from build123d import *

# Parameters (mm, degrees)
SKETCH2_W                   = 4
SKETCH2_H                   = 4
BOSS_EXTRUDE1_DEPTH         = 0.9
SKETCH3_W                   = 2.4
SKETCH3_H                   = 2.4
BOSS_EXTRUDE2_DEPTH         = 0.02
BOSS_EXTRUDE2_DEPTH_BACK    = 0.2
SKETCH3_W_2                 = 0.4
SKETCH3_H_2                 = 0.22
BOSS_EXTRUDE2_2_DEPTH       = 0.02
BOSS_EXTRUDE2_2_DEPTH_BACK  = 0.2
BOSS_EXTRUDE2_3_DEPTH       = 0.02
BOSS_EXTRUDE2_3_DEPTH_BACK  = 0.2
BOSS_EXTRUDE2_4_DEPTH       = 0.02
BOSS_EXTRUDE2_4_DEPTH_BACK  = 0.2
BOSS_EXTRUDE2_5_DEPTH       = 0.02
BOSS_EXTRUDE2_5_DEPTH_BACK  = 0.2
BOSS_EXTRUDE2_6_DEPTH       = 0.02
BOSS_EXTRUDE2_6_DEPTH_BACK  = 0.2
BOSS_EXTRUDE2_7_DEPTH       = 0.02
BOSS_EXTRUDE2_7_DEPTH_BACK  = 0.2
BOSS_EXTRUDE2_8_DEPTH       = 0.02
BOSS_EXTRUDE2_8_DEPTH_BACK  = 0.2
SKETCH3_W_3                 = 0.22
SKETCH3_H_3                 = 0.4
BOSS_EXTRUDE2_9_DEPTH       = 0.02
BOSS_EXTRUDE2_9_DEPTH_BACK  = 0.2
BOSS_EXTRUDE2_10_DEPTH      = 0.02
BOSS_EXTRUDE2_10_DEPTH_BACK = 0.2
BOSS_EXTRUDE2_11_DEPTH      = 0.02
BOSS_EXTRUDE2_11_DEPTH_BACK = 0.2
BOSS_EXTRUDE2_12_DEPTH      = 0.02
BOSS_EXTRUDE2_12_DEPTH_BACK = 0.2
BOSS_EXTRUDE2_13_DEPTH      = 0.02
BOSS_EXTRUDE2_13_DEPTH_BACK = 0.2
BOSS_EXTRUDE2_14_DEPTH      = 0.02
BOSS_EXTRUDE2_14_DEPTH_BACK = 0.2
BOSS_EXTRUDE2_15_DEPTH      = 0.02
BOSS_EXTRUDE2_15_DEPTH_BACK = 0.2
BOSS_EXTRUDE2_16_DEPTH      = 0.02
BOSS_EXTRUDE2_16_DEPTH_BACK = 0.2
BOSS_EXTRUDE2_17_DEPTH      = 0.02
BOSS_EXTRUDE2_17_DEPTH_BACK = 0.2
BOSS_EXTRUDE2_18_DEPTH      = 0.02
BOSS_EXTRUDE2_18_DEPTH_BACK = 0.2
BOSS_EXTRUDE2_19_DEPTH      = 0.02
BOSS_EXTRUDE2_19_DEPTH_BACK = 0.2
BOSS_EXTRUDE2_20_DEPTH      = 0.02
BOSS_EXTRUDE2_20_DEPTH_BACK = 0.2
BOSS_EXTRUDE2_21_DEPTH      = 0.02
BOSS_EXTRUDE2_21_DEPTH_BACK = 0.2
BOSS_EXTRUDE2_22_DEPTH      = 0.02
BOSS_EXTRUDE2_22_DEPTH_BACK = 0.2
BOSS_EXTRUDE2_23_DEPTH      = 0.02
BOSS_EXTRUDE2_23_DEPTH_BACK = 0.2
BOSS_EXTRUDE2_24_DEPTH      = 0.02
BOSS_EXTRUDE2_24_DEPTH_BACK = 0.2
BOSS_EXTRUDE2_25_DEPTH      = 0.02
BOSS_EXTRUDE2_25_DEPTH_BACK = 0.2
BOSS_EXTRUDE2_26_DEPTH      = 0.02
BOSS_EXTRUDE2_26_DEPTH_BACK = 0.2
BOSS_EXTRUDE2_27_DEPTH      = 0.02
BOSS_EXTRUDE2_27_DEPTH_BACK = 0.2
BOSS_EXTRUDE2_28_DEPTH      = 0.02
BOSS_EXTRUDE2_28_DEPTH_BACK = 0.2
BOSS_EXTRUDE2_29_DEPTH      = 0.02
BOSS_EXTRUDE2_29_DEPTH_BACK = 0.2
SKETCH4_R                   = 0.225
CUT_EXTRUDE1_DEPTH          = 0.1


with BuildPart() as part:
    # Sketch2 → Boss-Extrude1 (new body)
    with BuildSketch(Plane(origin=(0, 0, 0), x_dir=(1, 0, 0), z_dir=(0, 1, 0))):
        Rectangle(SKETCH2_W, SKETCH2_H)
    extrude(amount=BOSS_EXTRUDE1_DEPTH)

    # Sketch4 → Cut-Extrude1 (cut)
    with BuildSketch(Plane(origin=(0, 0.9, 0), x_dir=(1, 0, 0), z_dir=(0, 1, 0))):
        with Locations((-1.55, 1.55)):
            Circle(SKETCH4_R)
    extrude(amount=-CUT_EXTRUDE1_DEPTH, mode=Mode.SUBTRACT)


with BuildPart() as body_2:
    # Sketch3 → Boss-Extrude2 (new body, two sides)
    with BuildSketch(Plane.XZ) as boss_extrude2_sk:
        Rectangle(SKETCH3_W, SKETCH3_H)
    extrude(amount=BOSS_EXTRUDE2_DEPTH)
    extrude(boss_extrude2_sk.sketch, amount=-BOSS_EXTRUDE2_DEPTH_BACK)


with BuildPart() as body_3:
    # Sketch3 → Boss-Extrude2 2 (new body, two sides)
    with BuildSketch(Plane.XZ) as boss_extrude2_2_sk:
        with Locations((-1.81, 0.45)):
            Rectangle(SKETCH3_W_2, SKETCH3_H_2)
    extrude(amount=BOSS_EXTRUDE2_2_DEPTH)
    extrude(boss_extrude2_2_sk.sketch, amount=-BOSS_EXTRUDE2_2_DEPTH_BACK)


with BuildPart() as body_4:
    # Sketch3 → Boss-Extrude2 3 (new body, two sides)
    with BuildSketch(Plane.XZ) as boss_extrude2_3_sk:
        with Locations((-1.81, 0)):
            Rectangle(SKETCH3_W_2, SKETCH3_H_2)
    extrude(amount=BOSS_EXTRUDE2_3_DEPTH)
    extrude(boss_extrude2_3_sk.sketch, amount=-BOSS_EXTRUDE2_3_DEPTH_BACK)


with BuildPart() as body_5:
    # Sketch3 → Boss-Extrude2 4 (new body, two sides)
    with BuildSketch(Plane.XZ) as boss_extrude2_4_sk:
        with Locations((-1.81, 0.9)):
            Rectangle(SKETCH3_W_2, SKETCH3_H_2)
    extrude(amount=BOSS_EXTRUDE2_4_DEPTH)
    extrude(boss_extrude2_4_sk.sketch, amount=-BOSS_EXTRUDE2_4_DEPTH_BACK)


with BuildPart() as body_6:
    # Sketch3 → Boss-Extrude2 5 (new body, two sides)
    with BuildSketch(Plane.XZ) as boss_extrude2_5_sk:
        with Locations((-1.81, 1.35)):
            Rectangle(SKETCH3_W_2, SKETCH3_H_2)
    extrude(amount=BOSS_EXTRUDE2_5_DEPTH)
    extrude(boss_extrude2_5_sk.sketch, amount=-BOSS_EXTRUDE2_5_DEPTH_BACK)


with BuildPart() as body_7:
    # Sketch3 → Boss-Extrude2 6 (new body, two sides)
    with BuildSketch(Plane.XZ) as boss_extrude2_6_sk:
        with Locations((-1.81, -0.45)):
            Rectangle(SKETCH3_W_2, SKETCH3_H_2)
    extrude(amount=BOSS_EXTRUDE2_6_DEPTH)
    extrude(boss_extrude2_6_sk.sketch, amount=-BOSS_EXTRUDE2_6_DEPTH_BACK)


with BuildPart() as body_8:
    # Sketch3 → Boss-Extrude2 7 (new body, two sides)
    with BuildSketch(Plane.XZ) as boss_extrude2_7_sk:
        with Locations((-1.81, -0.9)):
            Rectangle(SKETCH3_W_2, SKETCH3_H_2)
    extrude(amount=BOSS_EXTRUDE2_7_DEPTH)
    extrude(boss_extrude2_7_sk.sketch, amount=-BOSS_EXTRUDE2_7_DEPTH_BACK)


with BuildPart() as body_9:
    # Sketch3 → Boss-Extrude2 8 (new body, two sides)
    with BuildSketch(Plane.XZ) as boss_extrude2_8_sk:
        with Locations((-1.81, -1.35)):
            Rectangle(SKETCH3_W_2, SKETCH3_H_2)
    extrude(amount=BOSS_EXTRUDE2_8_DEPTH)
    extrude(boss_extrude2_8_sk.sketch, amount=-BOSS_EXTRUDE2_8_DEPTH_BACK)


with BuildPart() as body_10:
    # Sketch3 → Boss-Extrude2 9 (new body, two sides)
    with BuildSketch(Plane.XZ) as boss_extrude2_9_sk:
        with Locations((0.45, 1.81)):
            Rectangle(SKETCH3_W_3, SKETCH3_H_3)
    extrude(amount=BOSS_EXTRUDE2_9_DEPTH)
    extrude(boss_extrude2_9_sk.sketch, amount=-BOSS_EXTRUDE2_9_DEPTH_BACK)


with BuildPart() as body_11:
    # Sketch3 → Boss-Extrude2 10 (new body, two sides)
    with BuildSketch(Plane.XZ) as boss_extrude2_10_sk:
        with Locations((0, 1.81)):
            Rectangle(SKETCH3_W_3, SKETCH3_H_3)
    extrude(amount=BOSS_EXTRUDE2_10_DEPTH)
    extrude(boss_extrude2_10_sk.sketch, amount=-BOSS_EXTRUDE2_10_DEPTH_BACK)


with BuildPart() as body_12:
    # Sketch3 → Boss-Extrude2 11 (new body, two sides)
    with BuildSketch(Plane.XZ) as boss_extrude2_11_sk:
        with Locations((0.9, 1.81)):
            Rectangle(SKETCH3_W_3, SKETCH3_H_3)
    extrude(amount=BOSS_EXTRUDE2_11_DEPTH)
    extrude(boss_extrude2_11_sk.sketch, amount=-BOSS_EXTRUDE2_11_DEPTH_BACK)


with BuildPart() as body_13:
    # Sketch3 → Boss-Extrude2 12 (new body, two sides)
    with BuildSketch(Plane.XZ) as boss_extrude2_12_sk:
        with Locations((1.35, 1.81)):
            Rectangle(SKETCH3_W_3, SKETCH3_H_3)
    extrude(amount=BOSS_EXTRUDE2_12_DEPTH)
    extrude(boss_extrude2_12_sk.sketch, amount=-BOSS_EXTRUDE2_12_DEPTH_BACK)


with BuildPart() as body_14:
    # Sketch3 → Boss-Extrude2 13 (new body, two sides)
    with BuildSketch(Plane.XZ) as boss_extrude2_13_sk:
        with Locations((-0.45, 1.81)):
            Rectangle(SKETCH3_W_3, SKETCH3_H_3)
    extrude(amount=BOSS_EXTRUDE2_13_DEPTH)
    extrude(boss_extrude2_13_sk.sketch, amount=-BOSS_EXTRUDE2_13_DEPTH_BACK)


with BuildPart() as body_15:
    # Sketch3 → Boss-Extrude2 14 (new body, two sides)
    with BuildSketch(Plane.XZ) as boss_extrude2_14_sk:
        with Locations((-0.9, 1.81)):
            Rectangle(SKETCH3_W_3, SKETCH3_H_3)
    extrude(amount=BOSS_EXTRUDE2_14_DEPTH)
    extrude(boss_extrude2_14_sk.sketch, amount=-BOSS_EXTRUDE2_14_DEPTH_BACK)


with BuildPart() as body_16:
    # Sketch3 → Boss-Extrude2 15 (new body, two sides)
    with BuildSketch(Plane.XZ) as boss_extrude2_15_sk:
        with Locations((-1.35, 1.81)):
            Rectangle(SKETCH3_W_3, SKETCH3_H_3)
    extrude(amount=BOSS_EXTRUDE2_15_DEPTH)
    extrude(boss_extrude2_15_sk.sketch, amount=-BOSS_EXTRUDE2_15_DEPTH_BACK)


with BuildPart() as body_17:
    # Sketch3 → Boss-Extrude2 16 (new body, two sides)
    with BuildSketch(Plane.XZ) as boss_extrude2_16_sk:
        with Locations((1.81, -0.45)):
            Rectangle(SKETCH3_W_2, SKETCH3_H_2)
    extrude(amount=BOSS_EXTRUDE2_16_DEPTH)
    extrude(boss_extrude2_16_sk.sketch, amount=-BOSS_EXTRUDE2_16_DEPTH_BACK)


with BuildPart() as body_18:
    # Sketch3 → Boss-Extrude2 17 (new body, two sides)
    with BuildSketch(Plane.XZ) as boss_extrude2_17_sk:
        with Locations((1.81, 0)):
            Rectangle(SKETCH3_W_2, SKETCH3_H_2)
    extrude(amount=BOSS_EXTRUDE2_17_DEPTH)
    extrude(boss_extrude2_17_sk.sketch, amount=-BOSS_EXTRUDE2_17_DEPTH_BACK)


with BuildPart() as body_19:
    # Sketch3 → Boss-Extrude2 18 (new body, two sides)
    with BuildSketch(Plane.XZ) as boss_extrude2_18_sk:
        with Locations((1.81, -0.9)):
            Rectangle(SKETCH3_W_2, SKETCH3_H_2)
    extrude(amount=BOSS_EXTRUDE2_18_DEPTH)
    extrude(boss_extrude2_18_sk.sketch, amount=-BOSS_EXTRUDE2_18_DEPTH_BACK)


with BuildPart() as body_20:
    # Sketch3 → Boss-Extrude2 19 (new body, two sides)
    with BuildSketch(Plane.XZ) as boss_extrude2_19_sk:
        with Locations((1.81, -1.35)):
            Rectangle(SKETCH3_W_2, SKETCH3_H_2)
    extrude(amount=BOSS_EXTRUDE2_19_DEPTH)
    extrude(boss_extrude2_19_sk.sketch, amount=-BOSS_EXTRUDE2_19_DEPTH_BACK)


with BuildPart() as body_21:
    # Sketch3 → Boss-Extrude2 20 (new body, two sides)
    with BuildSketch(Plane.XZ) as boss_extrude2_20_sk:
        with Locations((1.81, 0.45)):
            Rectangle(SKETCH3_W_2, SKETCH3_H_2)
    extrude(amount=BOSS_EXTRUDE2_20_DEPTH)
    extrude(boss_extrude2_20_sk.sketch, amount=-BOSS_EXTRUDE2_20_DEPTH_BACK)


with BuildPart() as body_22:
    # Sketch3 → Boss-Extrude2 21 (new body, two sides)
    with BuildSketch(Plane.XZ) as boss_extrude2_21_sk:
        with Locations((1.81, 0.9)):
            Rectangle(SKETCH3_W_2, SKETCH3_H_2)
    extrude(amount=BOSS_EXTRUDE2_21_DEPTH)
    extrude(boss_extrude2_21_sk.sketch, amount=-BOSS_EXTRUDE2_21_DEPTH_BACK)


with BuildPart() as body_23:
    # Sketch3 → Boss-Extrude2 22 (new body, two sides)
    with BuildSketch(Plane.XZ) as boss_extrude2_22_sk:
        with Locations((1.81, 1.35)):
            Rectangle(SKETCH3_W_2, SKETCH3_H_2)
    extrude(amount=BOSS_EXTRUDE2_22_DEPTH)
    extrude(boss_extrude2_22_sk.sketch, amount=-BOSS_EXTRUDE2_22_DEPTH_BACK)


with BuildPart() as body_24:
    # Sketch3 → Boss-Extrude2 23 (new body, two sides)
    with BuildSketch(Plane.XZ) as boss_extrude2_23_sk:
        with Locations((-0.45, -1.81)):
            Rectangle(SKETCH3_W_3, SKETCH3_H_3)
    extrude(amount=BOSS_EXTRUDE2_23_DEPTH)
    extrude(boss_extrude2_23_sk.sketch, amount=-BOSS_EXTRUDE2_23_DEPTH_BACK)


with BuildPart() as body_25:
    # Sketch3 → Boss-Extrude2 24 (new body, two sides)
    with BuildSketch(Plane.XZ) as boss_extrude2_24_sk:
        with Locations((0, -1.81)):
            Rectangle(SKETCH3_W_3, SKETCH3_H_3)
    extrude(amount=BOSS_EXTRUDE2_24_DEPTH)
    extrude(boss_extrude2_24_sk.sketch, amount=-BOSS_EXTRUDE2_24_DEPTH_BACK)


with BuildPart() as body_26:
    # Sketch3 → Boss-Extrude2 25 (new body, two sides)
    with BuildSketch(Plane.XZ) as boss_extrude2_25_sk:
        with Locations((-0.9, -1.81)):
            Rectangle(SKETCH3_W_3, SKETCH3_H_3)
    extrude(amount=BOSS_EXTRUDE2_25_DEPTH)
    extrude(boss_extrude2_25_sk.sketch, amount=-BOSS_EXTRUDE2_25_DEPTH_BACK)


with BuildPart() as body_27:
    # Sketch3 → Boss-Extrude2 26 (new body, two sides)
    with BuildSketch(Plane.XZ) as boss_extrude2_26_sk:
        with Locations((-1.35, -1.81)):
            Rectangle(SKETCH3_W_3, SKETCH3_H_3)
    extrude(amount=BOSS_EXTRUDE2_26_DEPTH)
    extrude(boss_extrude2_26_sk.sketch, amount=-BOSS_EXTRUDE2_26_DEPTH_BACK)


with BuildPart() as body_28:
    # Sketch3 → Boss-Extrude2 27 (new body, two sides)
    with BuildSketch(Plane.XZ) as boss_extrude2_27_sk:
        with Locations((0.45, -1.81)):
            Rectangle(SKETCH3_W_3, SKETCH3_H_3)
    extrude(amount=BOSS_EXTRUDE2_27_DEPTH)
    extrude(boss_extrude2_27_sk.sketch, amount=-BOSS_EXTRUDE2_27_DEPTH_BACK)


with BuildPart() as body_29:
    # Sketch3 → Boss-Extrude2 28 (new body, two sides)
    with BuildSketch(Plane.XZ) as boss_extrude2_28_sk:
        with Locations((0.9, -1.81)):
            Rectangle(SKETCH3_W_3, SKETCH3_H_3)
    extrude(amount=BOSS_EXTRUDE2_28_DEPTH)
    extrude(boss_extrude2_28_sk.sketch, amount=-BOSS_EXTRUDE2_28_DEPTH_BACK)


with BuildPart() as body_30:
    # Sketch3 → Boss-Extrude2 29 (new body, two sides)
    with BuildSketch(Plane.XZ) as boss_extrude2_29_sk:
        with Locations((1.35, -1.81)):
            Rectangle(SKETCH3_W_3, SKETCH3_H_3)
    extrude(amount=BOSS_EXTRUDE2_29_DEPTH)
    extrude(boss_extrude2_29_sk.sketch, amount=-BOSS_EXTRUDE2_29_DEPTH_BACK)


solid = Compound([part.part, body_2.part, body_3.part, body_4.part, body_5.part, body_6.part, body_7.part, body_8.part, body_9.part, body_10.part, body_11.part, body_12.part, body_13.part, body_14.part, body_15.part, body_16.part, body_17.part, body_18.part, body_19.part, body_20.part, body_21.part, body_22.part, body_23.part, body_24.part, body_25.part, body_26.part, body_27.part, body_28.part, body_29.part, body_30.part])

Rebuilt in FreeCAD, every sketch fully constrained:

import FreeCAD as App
import Part
import Sketcher
from FreeCAD import Vector


def add_polygon(sketch, points):
    """Adds a closed chain of lines whose ends are joined by coincident constraints."""
    first, n = sketch.GeometryCount, len(points)
    for a, b in zip(points, points[1:] + points[:1]):
        sketch.addGeometry(Part.LineSegment(App.Vector(*a, 0), App.Vector(*b, 0)), False)
    for i in range(n):
        sketch.addConstraint(Sketcher.Constraint("Coincident", first + i, 2, first + (i + 1) % n, 1))

doc = App.newDocument("Part")
body = doc.addObject("PartDesign::Body", "Body")

sketch1 = doc.addObject("Sketcher::SketchObject", "Sketch")
body.addObject(sketch1)
sketch1.AttachmentSupport = (doc.XZ_Plane, [""])
sketch1.MapMode = "FlatFace"
add_polygon(sketch1, [(-2, -2), (-2, 2), (2, 2), (2, -2)])
sketch1.addConstraint([
    Sketcher.Constraint("Vertical", 0),
    Sketcher.Constraint("Horizontal", 1),
    Sketcher.Constraint("Vertical", 2),
    Sketcher.Constraint("Horizontal", 3),
    Sketcher.Constraint("Symmetric", 0, 2, 2, 2, -1, 1),
    Sketcher.Constraint("Equal", 3, 0),
    Sketcher.Constraint("DistanceX", 1, 1, 1, 2, 4.0),
])
pad1 = doc.addObject("PartDesign::Pad", "Pad")
body.addObject(pad1)
pad1.Profile = sketch1
pad1.Length = 0.9
pad1.Reversed = True

sketch2 = doc.addObject("Sketcher::SketchObject", "Sketch001")
body.addObject(sketch2)
sketch2.AttachmentSupport = (doc.XZ_Plane, [""])
sketch2.MapMode = "FlatFace"
sketch2.AttachmentOffset = App.Placement(Vector(0, 0, -0.9), App.Rotation())
sketch2.addGeometry(Part.Circle(Vector(-1.55, -1.55, 0), Vector(0, 0, 1), 0.23), False)
sketch2.addConstraint([
    Sketcher.Constraint("Diameter", 0, 0.45),
    Sketcher.Constraint("DistanceX", 0, 3, -1, 1, 1.55),
    Sketcher.Constraint("DistanceY", 0, 3, -1, 1, 1.55),
])
pocket1 = doc.addObject("PartDesign::Pocket", "Pocket")
body.addObject(pocket1)
pocket1.Profile = sketch2
pocket1.Length = 0.1
pocket1.Reversed = True
body2 = doc.addObject("PartDesign::Body", "Body001")

sketch3 = doc.addObject("Sketcher::SketchObject", "Sketch002")
body2.addObject(sketch3)
sketch3.AttachmentSupport = (doc.getObject("XZ_Plane001"), [""])
sketch3.MapMode = "FlatFace"
add_polygon(sketch3, [(-1.2, 1.2), (-1.2, -1.2), (1.2, -1.2), (1.2, 1.2)])
sketch3.addConstraint([
    Sketcher.Constraint("Vertical", 0),
    Sketcher.Constraint("Horizontal", 1),
    Sketcher.Constraint("Vertical", 2),
    Sketcher.Constraint("Horizontal", 3),
    Sketcher.Constraint("Symmetric", 0, 2, 2, 2, -1, 1),
    Sketcher.Constraint("Equal", 3, 0),
    Sketcher.Constraint("DistanceX", 1, 1, 1, 2, 2.4),
])
pad2 = doc.addObject("PartDesign::Pad", "Pad001")
body2.addObject(pad2)
pad2.Profile = sketch3
pad2.Type = "TwoLengths"
pad2.Length = 0.02
pad2.Length2 = 0.2
body3 = doc.addObject("PartDesign::Body", "Body002")

sketch4 = doc.addObject("Sketcher::SketchObject", "Sketch003")
body3.addObject(sketch4)
sketch4.AttachmentSupport = (doc.getObject("XZ_Plane002"), [""])
sketch4.MapMode = "FlatFace"
add_polygon(sketch4, [(-2.01, 0.56), (-2.01, 0.34), (-1.61, 0.34), (-1.61, 0.56)])
sketch4.addConstraint([
    Sketcher.Constraint("Vertical", 0),
    Sketcher.Constraint("Horizontal", 1),
    Sketcher.Constraint("Vertical", 2),
    Sketcher.Constraint("Horizontal", 3),
    Sketcher.Constraint("DistanceX", 1, 1, 1, 2, 0.4),
    Sketcher.Constraint("DistanceY", 0, 2, 0, 1, 0.22),
    Sketcher.Constraint("DistanceX", 0, 2, -1, 1, 2.01),
    Sketcher.Constraint("DistanceY", -1, 1, 0, 2, 0.34),
])
pad3 = doc.addObject("PartDesign::Pad", "Pad002")
body3.addObject(pad3)
pad3.Profile = sketch4
pad3.Type = "TwoLengths"
pad3.Length = 0.02
pad3.Length2 = 0.2
body4 = doc.addObject("PartDesign::Body", "Body003")

sketch5 = doc.addObject("Sketcher::SketchObject", "Sketch004")
body4.addObject(sketch5)
sketch5.AttachmentSupport = (doc.getObject("XZ_Plane003"), [""])
sketch5.MapMode = "FlatFace"
add_polygon(sketch5, [(-2.01, 0.11), (-2.01, -0.11), (-1.61, -0.11), (-1.61, 0.11)])
sketch5.addConstraint([
    Sketcher.Constraint("Vertical", 0),
    Sketcher.Constraint("Horizontal", 1),
    Sketcher.Constraint("Vertical", 2),
    Sketcher.Constraint("Horizontal", 3),
    Sketcher.Constraint("DistanceX", 1, 1, 1, 2, 0.4),
    Sketcher.Constraint("DistanceY", 0, 2, 0, 1, 0.22),
    Sketcher.Constraint("DistanceX", 0, 2, -1, 1, 2.01),
    Sketcher.Constraint("DistanceY", 0, 2, -1, 1, 0.11),
])
pad4 = doc.addObject("PartDesign::Pad", "Pad003")
body4.addObject(pad4)
pad4.Profile = sketch5
pad4.Type = "TwoLengths"
pad4.Length = 0.02
pad4.Length2 = 0.2
body5 = doc.addObject("PartDesign::Body", "Body004")

sketch6 = doc.addObject("Sketcher::SketchObject", "Sketch005")
body5.addObject(sketch6)
sketch6.AttachmentSupport = (doc.getObject("XZ_Plane004"), [""])
sketch6.MapMode = "FlatFace"
add_polygon(sketch6, [(-2.01, 1.01), (-2.01, 0.79), (-1.61, 0.79), (-1.61, 1.01)])
sketch6.addConstraint([
    Sketcher.Constraint("Vertical", 0),
    Sketcher.Constraint("Horizontal", 1),
    Sketcher.Constraint("Vertical", 2),
    Sketcher.Constraint("Horizontal", 3),
    Sketcher.Constraint("DistanceX", 1, 1, 1, 2, 0.4),
    Sketcher.Constraint("DistanceY", 0, 2, 0, 1, 0.22),
    Sketcher.Constraint("DistanceX", 0, 2, -1, 1, 2.01),
    Sketcher.Constraint("DistanceY", -1, 1, 0, 2, 0.79),
])
pad5 = doc.addObject("PartDesign::Pad", "Pad004")
body5.addObject(pad5)
pad5.Profile = sketch6
pad5.Type = "TwoLengths"
pad5.Length = 0.02
pad5.Length2 = 0.2
body6 = doc.addObject("PartDesign::Body", "Body005")

sketch7 = doc.addObject("Sketcher::SketchObject", "Sketch006")
body6.addObject(sketch7)
sketch7.AttachmentSupport = (doc.getObject("XZ_Plane005"), [""])
sketch7.MapMode = "FlatFace"
add_polygon(sketch7, [(-2.01, 1.46), (-2.01, 1.24), (-1.61, 1.24), (-1.61, 1.46)])
sketch7.addConstraint([
    Sketcher.Constraint("Vertical", 0),
    Sketcher.Constraint("Horizontal", 1),
    Sketcher.Constraint("Vertical", 2),
    Sketcher.Constraint("Horizontal", 3),
    Sketcher.Constraint("DistanceX", 1, 1, 1, 2, 0.4),
    Sketcher.Constraint("DistanceY", 0, 2, 0, 1, 0.22),
    Sketcher.Constraint("DistanceX", 0, 2, -1, 1, 2.01),
    Sketcher.Constraint("DistanceY", -1, 1, 0, 2, 1.24),
])
pad6 = doc.addObject("PartDesign::Pad", "Pad005")
body6.addObject(pad6)
pad6.Profile = sketch7
pad6.Type = "TwoLengths"
pad6.Length = 0.02
pad6.Length2 = 0.2
body7 = doc.addObject("PartDesign::Body", "Body006")

sketch8 = doc.addObject("Sketcher::SketchObject", "Sketch007")
body7.addObject(sketch8)
sketch8.AttachmentSupport = (doc.getObject("XZ_Plane006"), [""])
sketch8.MapMode = "FlatFace"
add_polygon(sketch8, [(-2.01, -0.34), (-2.01, -0.56), (-1.61, -0.56), (-1.61, -0.34)])
sketch8.addConstraint([
    Sketcher.Constraint("Vertical", 0),
    Sketcher.Constraint("Horizontal", 1),
    Sketcher.Constraint("Vertical", 2),
    Sketcher.Constraint("Horizontal", 3),
    Sketcher.Constraint("DistanceX", 1, 1, 1, 2, 0.4),
    Sketcher.Constraint("DistanceY", 0, 2, 0, 1, 0.22),
    Sketcher.Constraint("DistanceX", 0, 2, -1, 1, 2.01),
    Sketcher.Constraint("DistanceY", 0, 2, -1, 1, 0.56),
])
pad7 = doc.addObject("PartDesign::Pad", "Pad006")
body7.addObject(pad7)
pad7.Profile = sketch8
pad7.Type = "TwoLengths"
pad7.Length = 0.02
pad7.Length2 = 0.2
body8 = doc.addObject("PartDesign::Body", "Body007")

sketch9 = doc.addObject("Sketcher::SketchObject", "Sketch008")
body8.addObject(sketch9)
sketch9.AttachmentSupport = (doc.getObject("XZ_Plane007"), [""])
sketch9.MapMode = "FlatFace"
add_polygon(sketch9, [(-2.01, -0.79), (-2.01, -1.01), (-1.61, -1.01), (-1.61, -0.79)])
sketch9.addConstraint([
    Sketcher.Constraint("Vertical", 0),
    Sketcher.Constraint("Horizontal", 1),
    Sketcher.Constraint("Vertical", 2),
    Sketcher.Constraint("Horizontal", 3),
    Sketcher.Constraint("DistanceX", 1, 1, 1, 2, 0.4),
    Sketcher.Constraint("DistanceY", 0, 2, 0, 1, 0.22),
    Sketcher.Constraint("DistanceX", 0, 2, -1, 1, 2.01),
    Sketcher.Constraint("DistanceY", 0, 2, -1, 1, 1.01),
])
pad8 = doc.addObject("PartDesign::Pad", "Pad007")
body8.addObject(pad8)
pad8.Profile = sketch9
pad8.Type = "TwoLengths"
pad8.Length = 0.02
pad8.Length2 = 0.2
body9 = doc.addObject("PartDesign::Body", "Body008")

sketch10 = doc.addObject("Sketcher::SketchObject", "Sketch009")
body9.addObject(sketch10)
sketch10.AttachmentSupport = (doc.getObject("XZ_Plane008"), [""])
sketch10.MapMode = "FlatFace"
add_polygon(sketch10, [(-2.01, -1.24), (-2.01, -1.46), (-1.61, -1.46), (-1.61, -1.24)])
sketch10.addConstraint([
    Sketcher.Constraint("Vertical", 0),
    Sketcher.Constraint("Horizontal", 1),
    Sketcher.Constraint("Vertical", 2),
    Sketcher.Constraint("Horizontal", 3),
    Sketcher.Constraint("DistanceX", 1, 1, 1, 2, 0.4),
    Sketcher.Constraint("DistanceY", 0, 2, 0, 1, 0.22),
    Sketcher.Constraint("DistanceX", 0, 2, -1, 1, 2.01),
    Sketcher.Constraint("DistanceY", 0, 2, -1, 1, 1.46),
])
pad9 = doc.addObject("PartDesign::Pad", "Pad008")
body9.addObject(pad9)
pad9.Profile = sketch10
pad9.Type = "TwoLengths"
pad9.Length = 0.02
pad9.Length2 = 0.2
body10 = doc.addObject("PartDesign::Body", "Body009")

sketch11 = doc.addObject("Sketcher::SketchObject", "Sketch010")
body10.addObject(sketch11)
sketch11.AttachmentSupport = (doc.getObject("XZ_Plane009"), [""])
sketch11.MapMode = "FlatFace"
add_polygon(sketch11, [(0.34, 2.01), (0.34, 1.61), (0.56, 1.61), (0.56, 2.01)])
sketch11.addConstraint([
    Sketcher.Constraint("Vertical", 0),
    Sketcher.Constraint("Horizontal", 1),
    Sketcher.Constraint("Vertical", 2),
    Sketcher.Constraint("Horizontal", 3),
    Sketcher.Constraint("DistanceY", 0, 2, 0, 1, 0.4),
    Sketcher.Constraint("DistanceX", 1, 1, 1, 2, 0.22),
    Sketcher.Constraint("DistanceX", -1, 1, 0, 2, 0.34),
    Sketcher.Constraint("DistanceY", -1, 1, 0, 2, 1.61),
])
pad10 = doc.addObject("PartDesign::Pad", "Pad009")
body10.addObject(pad10)
pad10.Profile = sketch11
pad10.Type = "TwoLengths"
pad10.Length = 0.02
pad10.Length2 = 0.2
body11 = doc.addObject("PartDesign::Body", "Body010")

sketch12 = doc.addObject("Sketcher::SketchObject", "Sketch011")
body11.addObject(sketch12)
sketch12.AttachmentSupport = (doc.getObject("XZ_Plane010"), [""])
sketch12.MapMode = "FlatFace"
add_polygon(sketch12, [(-0.11, 2.01), (-0.11, 1.61), (0.11, 1.61), (0.11, 2.01)])
sketch12.addConstraint([
    Sketcher.Constraint("Vertical", 0),
    Sketcher.Constraint("Horizontal", 1),
    Sketcher.Constraint("Vertical", 2),
    Sketcher.Constraint("Horizontal", 3),
    Sketcher.Constraint("DistanceY", 0, 2, 0, 1, 0.4),
    Sketcher.Constraint("DistanceX", 1, 1, 1, 2, 0.22),
    Sketcher.Constraint("DistanceX", 0, 2, -1, 1, 0.11),
    Sketcher.Constraint("DistanceY", -1, 1, 0, 2, 1.61),
])
pad11 = doc.addObject("PartDesign::Pad", "Pad010")
body11.addObject(pad11)
pad11.Profile = sketch12
pad11.Type = "TwoLengths"
pad11.Length = 0.02
pad11.Length2 = 0.2
body12 = doc.addObject("PartDesign::Body", "Body011")

sketch13 = doc.addObject("Sketcher::SketchObject", "Sketch012")
body12.addObject(sketch13)
sketch13.AttachmentSupport = (doc.getObject("XZ_Plane011"), [""])
sketch13.MapMode = "FlatFace"
add_polygon(sketch13, [(0.79, 2.01), (0.79, 1.61), (1.01, 1.61), (1.01, 2.01)])
sketch13.addConstraint([
    Sketcher.Constraint("Vertical", 0),
    Sketcher.Constraint("Horizontal", 1),
    Sketcher.Constraint("Vertical", 2),
    Sketcher.Constraint("Horizontal", 3),
    Sketcher.Constraint("DistanceY", 0, 2, 0, 1, 0.4),
    Sketcher.Constraint("DistanceX", 1, 1, 1, 2, 0.22),
    Sketcher.Constraint("DistanceX", -1, 1, 0, 2, 0.79),
    Sketcher.Constraint("DistanceY", -1, 1, 0, 2, 1.61),
])
pad12 = doc.addObject("PartDesign::Pad", "Pad011")
body12.addObject(pad12)
pad12.Profile = sketch13
pad12.Type = "TwoLengths"
pad12.Length = 0.02
pad12.Length2 = 0.2
body13 = doc.addObject("PartDesign::Body", "Body012")

sketch14 = doc.addObject("Sketcher::SketchObject", "Sketch013")
body13.addObject(sketch14)
sketch14.AttachmentSupport = (doc.getObject("XZ_Plane012"), [""])
sketch14.MapMode = "FlatFace"
add_polygon(sketch14, [(1.24, 2.01), (1.24, 1.61), (1.46, 1.61), (1.46, 2.01)])
sketch14.addConstraint([
    Sketcher.Constraint("Vertical", 0),
    Sketcher.Constraint("Horizontal", 1),
    Sketcher.Constraint("Vertical", 2),
    Sketcher.Constraint("Horizontal", 3),
    Sketcher.Constraint("DistanceY", 0, 2, 0, 1, 0.4),
    Sketcher.Constraint("DistanceX", 1, 1, 1, 2, 0.22),
    Sketcher.Constraint("DistanceX", -1, 1, 0, 2, 1.24),
    Sketcher.Constraint("DistanceY", -1, 1, 0, 2, 1.61),
])
pad13 = doc.addObject("PartDesign::Pad", "Pad012")
body13.addObject(pad13)
pad13.Profile = sketch14
pad13.Type = "TwoLengths"
pad13.Length = 0.02
pad13.Length2 = 0.2
body14 = doc.addObject("PartDesign::Body", "Body013")

sketch15 = doc.addObject("Sketcher::SketchObject", "Sketch014")
body14.addObject(sketch15)
sketch15.AttachmentSupport = (doc.getObject("XZ_Plane013"), [""])
sketch15.MapMode = "FlatFace"
add_polygon(sketch15, [(-0.56, 2.01), (-0.56, 1.61), (-0.34, 1.61), (-0.34, 2.01)])
sketch15.addConstraint([
    Sketcher.Constraint("Vertical", 0),
    Sketcher.Constraint("Horizontal", 1),
    Sketcher.Constraint("Vertical", 2),
    Sketcher.Constraint("Horizontal", 3),
    Sketcher.Constraint("DistanceY", 0, 2, 0, 1, 0.4),
    Sketcher.Constraint("DistanceX", 1, 1, 1, 2, 0.22),
    Sketcher.Constraint("DistanceX", 0, 2, -1, 1, 0.56),
    Sketcher.Constraint("DistanceY", -1, 1, 0, 2, 1.61),
])
pad14 = doc.addObject("PartDesign::Pad", "Pad013")
body14.addObject(pad14)
pad14.Profile = sketch15
pad14.Type = "TwoLengths"
pad14.Length = 0.02
pad14.Length2 = 0.2
body15 = doc.addObject("PartDesign::Body", "Body014")

sketch16 = doc.addObject("Sketcher::SketchObject", "Sketch015")
body15.addObject(sketch16)
sketch16.AttachmentSupport = (doc.getObject("XZ_Plane014"), [""])
sketch16.MapMode = "FlatFace"
add_polygon(sketch16, [(-1.01, 2.01), (-1.01, 1.61), (-0.79, 1.61), (-0.79, 2.01)])
sketch16.addConstraint([
    Sketcher.Constraint("Vertical", 0),
    Sketcher.Constraint("Horizontal", 1),
    Sketcher.Constraint("Vertical", 2),
    Sketcher.Constraint("Horizontal", 3),
    Sketcher.Constraint("DistanceY", 0, 2, 0, 1, 0.4),
    Sketcher.Constraint("DistanceX", 1, 1, 1, 2, 0.22),
    Sketcher.Constraint("DistanceX", 0, 2, -1, 1, 1.01),
    Sketcher.Constraint("DistanceY", -1, 1, 0, 2, 1.61),
])
pad15 = doc.addObject("PartDesign::Pad", "Pad014")
body15.addObject(pad15)
pad15.Profile = sketch16
pad15.Type = "TwoLengths"
pad15.Length = 0.02
pad15.Length2 = 0.2
body16 = doc.addObject("PartDesign::Body", "Body015")

sketch17 = doc.addObject("Sketcher::SketchObject", "Sketch016")
body16.addObject(sketch17)
sketch17.AttachmentSupport = (doc.getObject("XZ_Plane015"), [""])
sketch17.MapMode = "FlatFace"
add_polygon(sketch17, [(-1.46, 2.01), (-1.46, 1.61), (-1.24, 1.61), (-1.24, 2.01)])
sketch17.addConstraint([
    Sketcher.Constraint("Vertical", 0),
    Sketcher.Constraint("Horizontal", 1),
    Sketcher.Constraint("Vertical", 2),
    Sketcher.Constraint("Horizontal", 3),
    Sketcher.Constraint("DistanceY", 0, 2, 0, 1, 0.4),
    Sketcher.Constraint("DistanceX", 1, 1, 1, 2, 0.22),
    Sketcher.Constraint("DistanceX", 0, 2, -1, 1, 1.46),
    Sketcher.Constraint("DistanceY", -1, 1, 0, 2, 1.61),
])
pad16 = doc.addObject("PartDesign::Pad", "Pad015")
body16.addObject(pad16)
pad16.Profile = sketch17
pad16.Type = "TwoLengths"
pad16.Length = 0.02
pad16.Length2 = 0.2
body17 = doc.addObject("PartDesign::Body", "Body016")

sketch18 = doc.addObject("Sketcher::SketchObject", "Sketch017")
body17.addObject(sketch18)
sketch18.AttachmentSupport = (doc.getObject("XZ_Plane016"), [""])
sketch18.MapMode = "FlatFace"
add_polygon(sketch18, [(1.61, -0.34), (1.61, -0.56), (2.01, -0.56), (2.01, -0.34)])
sketch18.addConstraint([
    Sketcher.Constraint("Vertical", 0),
    Sketcher.Constraint("Horizontal", 1),
    Sketcher.Constraint("Vertical", 2),
    Sketcher.Constraint("Horizontal", 3),
    Sketcher.Constraint("DistanceX", 1, 1, 1, 2, 0.4),
    Sketcher.Constraint("DistanceY", 0, 2, 0, 1, 0.22),
    Sketcher.Constraint("DistanceX", -1, 1, 0, 2, 1.61),
    Sketcher.Constraint("DistanceY", 0, 2, -1, 1, 0.56),
])
pad17 = doc.addObject("PartDesign::Pad", "Pad016")
body17.addObject(pad17)
pad17.Profile = sketch18
pad17.Type = "TwoLengths"
pad17.Length = 0.02
pad17.Length2 = 0.2
body18 = doc.addObject("PartDesign::Body", "Body017")

sketch19 = doc.addObject("Sketcher::SketchObject", "Sketch018")
body18.addObject(sketch19)
sketch19.AttachmentSupport = (doc.getObject("XZ_Plane017"), [""])
sketch19.MapMode = "FlatFace"
add_polygon(sketch19, [(1.61, 0.11), (1.61, -0.11), (2.01, -0.11), (2.01, 0.11)])
sketch19.addConstraint([
    Sketcher.Constraint("Vertical", 0),
    Sketcher.Constraint("Horizontal", 1),
    Sketcher.Constraint("Vertical", 2),
    Sketcher.Constraint("Horizontal", 3),
    Sketcher.Constraint("DistanceX", 1, 1, 1, 2, 0.4),
    Sketcher.Constraint("DistanceY", 0, 2, 0, 1, 0.22),
    Sketcher.Constraint("DistanceX", -1, 1, 0, 2, 1.61),
    Sketcher.Constraint("DistanceY", 0, 2, -1, 1, 0.11),
])
pad18 = doc.addObject("PartDesign::Pad", "Pad017")
body18.addObject(pad18)
pad18.Profile = sketch19
pad18.Type = "TwoLengths"
pad18.Length = 0.02
pad18.Length2 = 0.2
body19 = doc.addObject("PartDesign::Body", "Body018")

sketch20 = doc.addObject("Sketcher::SketchObject", "Sketch019")
body19.addObject(sketch20)
sketch20.AttachmentSupport = (doc.getObject("XZ_Plane018"), [""])
sketch20.MapMode = "FlatFace"
add_polygon(sketch20, [(1.61, -0.79), (1.61, -1.01), (2.01, -1.01), (2.01, -0.79)])
sketch20.addConstraint([
    Sketcher.Constraint("Vertical", 0),
    Sketcher.Constraint("Horizontal", 1),
    Sketcher.Constraint("Vertical", 2),
    Sketcher.Constraint("Horizontal", 3),
    Sketcher.Constraint("DistanceX", 1, 1, 1, 2, 0.4),
    Sketcher.Constraint("DistanceY", 0, 2, 0, 1, 0.22),
    Sketcher.Constraint("DistanceX", -1, 1, 0, 2, 1.61),
    Sketcher.Constraint("DistanceY", 0, 2, -1, 1, 1.01),
])
pad19 = doc.addObject("PartDesign::Pad", "Pad018")
body19.addObject(pad19)
pad19.Profile = sketch20
pad19.Type = "TwoLengths"
pad19.Length = 0.02
pad19.Length2 = 0.2
body20 = doc.addObject("PartDesign::Body", "Body019")

sketch21 = doc.addObject("Sketcher::SketchObject", "Sketch020")
body20.addObject(sketch21)
sketch21.AttachmentSupport = (doc.getObject("XZ_Plane019"), [""])
sketch21.MapMode = "FlatFace"
add_polygon(sketch21, [(1.61, -1.24), (1.61, -1.46), (2.01, -1.46), (2.01, -1.24)])
sketch21.addConstraint([
    Sketcher.Constraint("Vertical", 0),
    Sketcher.Constraint("Horizontal", 1),
    Sketcher.Constraint("Vertical", 2),
    Sketcher.Constraint("Horizontal", 3),
    Sketcher.Constraint("DistanceX", 1, 1, 1, 2, 0.4),
    Sketcher.Constraint("DistanceY", 0, 2, 0, 1, 0.22),
    Sketcher.Constraint("DistanceX", -1, 1, 0, 2, 1.61),
    Sketcher.Constraint("DistanceY", 0, 2, -1, 1, 1.46),
])
pad20 = doc.addObject("PartDesign::Pad", "Pad019")
body20.addObject(pad20)
pad20.Profile = sketch21
pad20.Type = "TwoLengths"
pad20.Length = 0.02
pad20.Length2 = 0.2
body21 = doc.addObject("PartDesign::Body", "Body020")

sketch22 = doc.addObject("Sketcher::SketchObject", "Sketch021")
body21.addObject(sketch22)
sketch22.AttachmentSupport = (doc.getObject("XZ_Plane020"), [""])
sketch22.MapMode = "FlatFace"
add_polygon(sketch22, [(1.61, 0.56), (1.61, 0.34), (2.01, 0.34), (2.01, 0.56)])
sketch22.addConstraint([
    Sketcher.Constraint("Vertical", 0),
    Sketcher.Constraint("Horizontal", 1),
    Sketcher.Constraint("Vertical", 2),
    Sketcher.Constraint("Horizontal", 3),
    Sketcher.Constraint("DistanceX", 1, 1, 1, 2, 0.4),
    Sketcher.Constraint("DistanceY", 0, 2, 0, 1, 0.22),
    Sketcher.Constraint("DistanceX", -1, 1, 0, 2, 1.61),
    Sketcher.Constraint("DistanceY", -1, 1, 0, 2, 0.34),
])
pad21 = doc.addObject("PartDesign::Pad", "Pad020")
body21.addObject(pad21)
pad21.Profile = sketch22
pad21.Type = "TwoLengths"
pad21.Length = 0.02
pad21.Length2 = 0.2
body22 = doc.addObject("PartDesign::Body", "Body021")

sketch23 = doc.addObject("Sketcher::SketchObject", "Sketch022")
body22.addObject(sketch23)
sketch23.AttachmentSupport = (doc.getObject("XZ_Plane021"), [""])
sketch23.MapMode = "FlatFace"
add_polygon(sketch23, [(1.61, 1.01), (1.61, 0.79), (2.01, 0.79), (2.01, 1.01)])
sketch23.addConstraint([
    Sketcher.Constraint("Vertical", 0),
    Sketcher.Constraint("Horizontal", 1),
    Sketcher.Constraint("Vertical", 2),
    Sketcher.Constraint("Horizontal", 3),
    Sketcher.Constraint("DistanceX", 1, 1, 1, 2, 0.4),
    Sketcher.Constraint("DistanceY", 0, 2, 0, 1, 0.22),
    Sketcher.Constraint("DistanceX", -1, 1, 0, 2, 1.61),
    Sketcher.Constraint("DistanceY", -1, 1, 0, 2, 0.79),
])
pad22 = doc.addObject("PartDesign::Pad", "Pad021")
body22.addObject(pad22)
pad22.Profile = sketch23
pad22.Type = "TwoLengths"
pad22.Length = 0.02
pad22.Length2 = 0.2
body23 = doc.addObject("PartDesign::Body", "Body022")

sketch24 = doc.addObject("Sketcher::SketchObject", "Sketch023")
body23.addObject(sketch24)
sketch24.AttachmentSupport = (doc.getObject("XZ_Plane022"), [""])
sketch24.MapMode = "FlatFace"
add_polygon(sketch24, [(1.61, 1.46), (1.61, 1.24), (2.01, 1.24), (2.01, 1.46)])
sketch24.addConstraint([
    Sketcher.Constraint("Vertical", 0),
    Sketcher.Constraint("Horizontal", 1),
    Sketcher.Constraint("Vertical", 2),
    Sketcher.Constraint("Horizontal", 3),
    Sketcher.Constraint("DistanceX", 1, 1, 1, 2, 0.4),
    Sketcher.Constraint("DistanceY", 0, 2, 0, 1, 0.22),
    Sketcher.Constraint("DistanceX", -1, 1, 0, 2, 1.61),
    Sketcher.Constraint("DistanceY", -1, 1, 0, 2, 1.24),
])
pad23 = doc.addObject("PartDesign::Pad", "Pad022")
body23.addObject(pad23)
pad23.Profile = sketch24
pad23.Type = "TwoLengths"
pad23.Length = 0.02
pad23.Length2 = 0.2
body24 = doc.addObject("PartDesign::Body", "Body023")

sketch25 = doc.addObject("Sketcher::SketchObject", "Sketch024")
body24.addObject(sketch25)
sketch25.AttachmentSupport = (doc.getObject("XZ_Plane023"), [""])
sketch25.MapMode = "FlatFace"
add_polygon(sketch25, [(-0.56, -1.61), (-0.56, -2.01), (-0.34, -2.01), (-0.34, -1.61)])
sketch25.addConstraint([
    Sketcher.Constraint("Vertical", 0),
    Sketcher.Constraint("Horizontal", 1),
    Sketcher.Constraint("Vertical", 2),
    Sketcher.Constraint("Horizontal", 3),
    Sketcher.Constraint("DistanceY", 0, 2, 0, 1, 0.4),
    Sketcher.Constraint("DistanceX", 1, 1, 1, 2, 0.22),
    Sketcher.Constraint("DistanceX", 0, 2, -1, 1, 0.56),
    Sketcher.Constraint("DistanceY", 0, 2, -1, 1, 2.01),
])
pad24 = doc.addObject("PartDesign::Pad", "Pad023")
body24.addObject(pad24)
pad24.Profile = sketch25
pad24.Type = "TwoLengths"
pad24.Length = 0.02
pad24.Length2 = 0.2
body25 = doc.addObject("PartDesign::Body", "Body024")

sketch26 = doc.addObject("Sketcher::SketchObject", "Sketch025")
body25.addObject(sketch26)
sketch26.AttachmentSupport = (doc.getObject("XZ_Plane024"), [""])
sketch26.MapMode = "FlatFace"
add_polygon(sketch26, [(-0.11, -1.61), (-0.11, -2.01), (0.11, -2.01), (0.11, -1.61)])
sketch26.addConstraint([
    Sketcher.Constraint("Vertical", 0),
    Sketcher.Constraint("Horizontal", 1),
    Sketcher.Constraint("Vertical", 2),
    Sketcher.Constraint("Horizontal", 3),
    Sketcher.Constraint("DistanceY", 0, 2, 0, 1, 0.4),
    Sketcher.Constraint("DistanceX", 1, 1, 1, 2, 0.22),
    Sketcher.Constraint("DistanceX", 0, 2, -1, 1, 0.11),
    Sketcher.Constraint("DistanceY", 0, 2, -1, 1, 2.01),
])
pad25 = doc.addObject("PartDesign::Pad", "Pad024")
body25.addObject(pad25)
pad25.Profile = sketch26
pad25.Type = "TwoLengths"
pad25.Length = 0.02
pad25.Length2 = 0.2
body26 = doc.addObject("PartDesign::Body", "Body025")

sketch27 = doc.addObject("Sketcher::SketchObject", "Sketch026")
body26.addObject(sketch27)
sketch27.AttachmentSupport = (doc.getObject("XZ_Plane025"), [""])
sketch27.MapMode = "FlatFace"
add_polygon(sketch27, [(-1.01, -1.61), (-1.01, -2.01), (-0.79, -2.01), (-0.79, -1.61)])
sketch27.addConstraint([
    Sketcher.Constraint("Vertical", 0),
    Sketcher.Constraint("Horizontal", 1),
    Sketcher.Constraint("Vertical", 2),
    Sketcher.Constraint("Horizontal", 3),
    Sketcher.Constraint("DistanceY", 0, 2, 0, 1, 0.4),
    Sketcher.Constraint("DistanceX", 1, 1, 1, 2, 0.22),
    Sketcher.Constraint("DistanceX", 0, 2, -1, 1, 1.01),
    Sketcher.Constraint("DistanceY", 0, 2, -1, 1, 2.01),
])
pad26 = doc.addObject("PartDesign::Pad", "Pad025")
body26.addObject(pad26)
pad26.Profile = sketch27
pad26.Type = "TwoLengths"
pad26.Length = 0.02
pad26.Length2 = 0.2
body27 = doc.addObject("PartDesign::Body", "Body026")

sketch28 = doc.addObject("Sketcher::SketchObject", "Sketch027")
body27.addObject(sketch28)
sketch28.AttachmentSupport = (doc.getObject("XZ_Plane026"), [""])
sketch28.MapMode = "FlatFace"
add_polygon(sketch28, [(-1.46, -1.61), (-1.46, -2.01), (-1.24, -2.01), (-1.24, -1.61)])
sketch28.addConstraint([
    Sketcher.Constraint("Vertical", 0),
    Sketcher.Constraint("Horizontal", 1),
    Sketcher.Constraint("Vertical", 2),
    Sketcher.Constraint("Horizontal", 3),
    Sketcher.Constraint("DistanceY", 0, 2, 0, 1, 0.4),
    Sketcher.Constraint("DistanceX", 1, 1, 1, 2, 0.22),
    Sketcher.Constraint("DistanceX", 0, 2, -1, 1, 1.46),
    Sketcher.Constraint("DistanceY", 0, 2, -1, 1, 2.01),
])
pad27 = doc.addObject("PartDesign::Pad", "Pad026")
body27.addObject(pad27)
pad27.Profile = sketch28
pad27.Type = "TwoLengths"
pad27.Length = 0.02
pad27.Length2 = 0.2
body28 = doc.addObject("PartDesign::Body", "Body027")

sketch29 = doc.addObject("Sketcher::SketchObject", "Sketch028")
body28.addObject(sketch29)
sketch29.AttachmentSupport = (doc.getObject("XZ_Plane027"), [""])
sketch29.MapMode = "FlatFace"
add_polygon(sketch29, [(0.34, -1.61), (0.34, -2.01), (0.56, -2.01), (0.56, -1.61)])
sketch29.addConstraint([
    Sketcher.Constraint("Vertical", 0),
    Sketcher.Constraint("Horizontal", 1),
    Sketcher.Constraint("Vertical", 2),
    Sketcher.Constraint("Horizontal", 3),
    Sketcher.Constraint("DistanceY", 0, 2, 0, 1, 0.4),
    Sketcher.Constraint("DistanceX", 1, 1, 1, 2, 0.22),
    Sketcher.Constraint("DistanceX", -1, 1, 0, 2, 0.34),
    Sketcher.Constraint("DistanceY", 0, 2, -1, 1, 2.01),
])
pad28 = doc.addObject("PartDesign::Pad", "Pad027")
body28.addObject(pad28)
pad28.Profile = sketch29
pad28.Type = "TwoLengths"
pad28.Length = 0.02
pad28.Length2 = 0.2
body29 = doc.addObject("PartDesign::Body", "Body028")

sketch30 = doc.addObject("Sketcher::SketchObject", "Sketch029")
body29.addObject(sketch30)
sketch30.AttachmentSupport = (doc.getObject("XZ_Plane028"), [""])
sketch30.MapMode = "FlatFace"
add_polygon(sketch30, [(0.79, -1.61), (0.79, -2.01), (1.01, -2.01), (1.01, -1.61)])
sketch30.addConstraint([
    Sketcher.Constraint("Vertical", 0),
    Sketcher.Constraint("Horizontal", 1),
    Sketcher.Constraint("Vertical", 2),
    Sketcher.Constraint("Horizontal", 3),
    Sketcher.Constraint("DistanceY", 0, 2, 0, 1, 0.4),
    Sketcher.Constraint("DistanceX", 1, 1, 1, 2, 0.22),
    Sketcher.Constraint("DistanceX", -1, 1, 0, 2, 0.79),
    Sketcher.Constraint("DistanceY", 0, 2, -1, 1, 2.01),
])
pad29 = doc.addObject("PartDesign::Pad", "Pad028")
body29.addObject(pad29)
pad29.Profile = sketch30
pad29.Type = "TwoLengths"
pad29.Length = 0.02
pad29.Length2 = 0.2
body30 = doc.addObject("PartDesign::Body", "Body029")

sketch31 = doc.addObject("Sketcher::SketchObject", "Sketch030")
body30.addObject(sketch31)
sketch31.AttachmentSupport = (doc.getObject("XZ_Plane029"), [""])
sketch31.MapMode = "FlatFace"
add_polygon(sketch31, [(1.24, -1.61), (1.24, -2.01), (1.46, -2.01), (1.46, -1.61)])
sketch31.addConstraint([
    Sketcher.Constraint("Vertical", 0),
    Sketcher.Constraint("Horizontal", 1),
    Sketcher.Constraint("Vertical", 2),
    Sketcher.Constraint("Horizontal", 3),
    Sketcher.Constraint("DistanceY", 0, 2, 0, 1, 0.4),
    Sketcher.Constraint("DistanceX", 1, 1, 1, 2, 0.22),
    Sketcher.Constraint("DistanceX", -1, 1, 0, 2, 1.24),
    Sketcher.Constraint("DistanceY", 0, 2, -1, 1, 2.01),
])
pad30 = doc.addObject("PartDesign::Pad", "Pad029")
body30.addObject(pad30)
pad30.Profile = sketch31
pad30.Type = "TwoLengths"
pad30.Length = 0.02
pad30.Length2 = 0.2

doc.recompute()
